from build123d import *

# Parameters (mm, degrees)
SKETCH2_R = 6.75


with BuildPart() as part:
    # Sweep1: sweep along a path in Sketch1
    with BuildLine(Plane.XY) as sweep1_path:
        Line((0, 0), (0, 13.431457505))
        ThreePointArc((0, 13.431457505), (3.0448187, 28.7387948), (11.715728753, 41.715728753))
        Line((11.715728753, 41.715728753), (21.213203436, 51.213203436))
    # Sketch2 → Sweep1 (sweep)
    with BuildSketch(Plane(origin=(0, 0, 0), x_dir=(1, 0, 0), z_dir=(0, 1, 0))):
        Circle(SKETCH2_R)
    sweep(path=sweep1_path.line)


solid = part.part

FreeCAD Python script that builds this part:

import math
import FreeCAD as App
import Part
import Sketcher
from FreeCAD import Vector
Q = App.Units.Quantity

doc = App.newDocument("Part")
params = doc.addObject("Spreadsheet::Sheet", "Params")
for row, (alias, value) in enumerate([
    ("sketch1_diameter", "13.5 mm"),
    ("sketch2_radius", "40 mm"),
], start=1):
    params.set(f"A{row}", alias)
    params.set(f"B{row}", "=" + value)
    params.setAlias(f"B{row}", alias)

body = doc.addObject("PartDesign::Body", "Body")

# Sketch on XZ plane
sketch1 = body.newObject("Sketcher::SketchObject", "Sketch")
sketch1.AttachmentSupport = (doc.getObject("XZ_Plane"), [""])
sketch1.MapMode = "FlatFace"
sketch1.addGeometry(Part.Circle(Vector(0, 0, 0), Vector(0, 0, 1), 7), False)
sketch1.addConstraint(Sketcher.Constraint("Coincident", 0, 3, -1, 1))
sketch1.addConstraint(Sketcher.Constraint("Diameter", 0, Q("13.5 mm")))
sketch1.setExpression("Constraints[1]", "Params.sketch1_diameter")

# Sketch on XY plane
sketch2 = body.newObject("Sketcher::SketchObject", "Sketch001")
sketch2.AttachmentSupport = (doc.getObject("XY_Plane"), [""])
sketch2.MapMode = "FlatFace"
sketch2.addGeometry(Part.LineSegment(Vector(0, 0, 0), Vector(0, 13, 0)), False)
sketch2.addGeometry(Part.ArcOfCircle(Part.Circle(Vector(40, 13, 0), Vector(0, 0, 1), 40), math.radians(135), math.radians(180)), False)
sketch2.addGeometry(Part.LineSegment(Vector(12, 42, 0), Vector(21, 51, 0)), False)
sketch2.addConstraint(Sketcher.Constraint("Tangent", 0, 2, 1, 2))
sketch2.addConstraint(Sketcher.Constraint("Tangent", 1, 1, 2, 1))
sketch2.addConstraint(Sketcher.Constraint("Vertical", 0))
sketch2.addConstraint(Sketcher.Constraint("Coincident", 0, 1, -1, 1))
sketch2.addConstraint(Sketcher.Constraint("Radius", 1, Q("40 mm")))
sketch2.addConstraint(Sketcher.Constraint("Angle", 2, Q("45 deg")))
sketch2.addConstraint(Sketcher.Constraint("DistanceY", 0, 1, 0, 2, Q("13.431458 mm")))
sketch2.addConstraint(Sketcher.Constraint("Distance", 2, Q("13.431458 mm")))
sketch2.setExpression("Constraints[4]", "Params.sketch2_radius")
doc.recompute()

additivepipe = body.newObject("PartDesign::AdditivePipe", "AdditivePipe")
additivepipe.Profile = sketch1
additivepipe.Spine = (sketch2, ["Edge1", "Edge2", "Edge3"])

doc.recompute()
